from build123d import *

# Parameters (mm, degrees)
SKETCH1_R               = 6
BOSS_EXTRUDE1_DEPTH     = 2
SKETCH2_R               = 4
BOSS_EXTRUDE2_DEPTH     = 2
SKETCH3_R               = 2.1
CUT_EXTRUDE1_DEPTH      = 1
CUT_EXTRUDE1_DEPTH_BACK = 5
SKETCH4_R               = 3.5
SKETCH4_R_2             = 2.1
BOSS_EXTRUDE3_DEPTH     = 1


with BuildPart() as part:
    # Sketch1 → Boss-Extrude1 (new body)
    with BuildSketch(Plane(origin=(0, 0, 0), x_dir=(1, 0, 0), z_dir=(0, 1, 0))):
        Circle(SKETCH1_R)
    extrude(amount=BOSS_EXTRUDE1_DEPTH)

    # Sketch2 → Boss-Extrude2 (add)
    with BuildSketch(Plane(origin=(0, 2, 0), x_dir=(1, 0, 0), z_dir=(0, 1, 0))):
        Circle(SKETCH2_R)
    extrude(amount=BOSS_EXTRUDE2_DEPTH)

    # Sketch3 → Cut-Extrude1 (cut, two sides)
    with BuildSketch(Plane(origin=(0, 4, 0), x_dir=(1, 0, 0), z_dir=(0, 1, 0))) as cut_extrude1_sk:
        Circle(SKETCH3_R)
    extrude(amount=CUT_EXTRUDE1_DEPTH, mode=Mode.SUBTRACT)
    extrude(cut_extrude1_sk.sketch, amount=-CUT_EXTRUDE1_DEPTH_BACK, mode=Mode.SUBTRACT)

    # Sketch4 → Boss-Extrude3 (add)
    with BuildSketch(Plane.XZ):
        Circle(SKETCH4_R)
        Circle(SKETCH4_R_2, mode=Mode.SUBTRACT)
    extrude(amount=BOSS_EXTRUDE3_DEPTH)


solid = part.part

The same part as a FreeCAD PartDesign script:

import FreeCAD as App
import Part
import Sketcher
from FreeCAD import Vector

doc = App.newDocument("Part")
params = doc.addObject("Spreadsheet::Sheet", "Params")
for row, (alias, value) in enumerate([
    ("sketch1_diameter", "12 mm"),
    ("pad1_length", "2 mm"),
    ("sketch2_diameter", "8 mm"),
    ("pad2_length", "2 mm"),
    ("sketch3_diameter", "4.2 mm"),
    ("sketch4_diameter", "7 mm"),
    ("sketch4_diameter2", "4.2 mm"),
    ("pad3_length", "1 mm"),
], start=1):
    params.set(f"A{row}", alias)
    params.set(f"B{row}", "=" + value)
    params.setAlias(f"B{row}", alias)

body = doc.addObject("PartDesign::Body", "Body")

# Sketch on XZ plane
sketch1 = body.newObject("Sketcher::SketchObject", "Sketch")
sketch1.AttachmentSupport = (doc.getObject("XZ_Plane"), [""])
sketch1.MapMode = "FlatFace"
sketch1.addGeometry(Part.Circle(Vector(0, 0, 0), Vector(0, 0, 1), 6), False)
sketch1.addConstraint(Sketcher.Constraint("Coincident", 0, 3, -1, 1))
sketch1.addConstraint(Sketcher.Constraint("Diameter", 0, 12.0))
sketch1.setExpression("Constraints[1]", "Params.sketch1_diameter")
pad1 = body.newObject("PartDesign::Pad", "Pad")
pad1.Profile = sketch1
pad1.setExpression("Length", "Params.pad1_length")
pad1.Reversed = True

# Sketch on XZ plane
sketch2 = body.newObject("Sketcher::SketchObject", "Sketch001")
sketch2.AttachmentSupport = (doc.getObject("XZ_Plane"), [""])
sketch2.MapMode = "FlatFace"
sketch2.AttachmentOffset = App.Placement(Vector(0, 0, -2), App.Rotation())
sketch2.addGeometry(Part.Circle(Vector(0, 0, 0), Vector(0, 0, 1), 4), False)
sketch2.addConstraint(Sketcher.Constraint("Coincident", 0, 3, -1, 1))
sketch2.addConstraint(Sketcher.Constraint("Diameter", 0, 8.0))
sketch2.setExpression("Constraints[1]", "Params.sketch2_diameter")
pad2 = body.newObject("PartDesign::Pad", "Pad001")
pad2.Profile = sketch2
pad2.setExpression("Length", "Params.pad2_length")
pad2.Reversed = True

# Sketch on XZ plane
sketch3 = body.newObject("Sketcher::SketchObject", "Sketch002")
sketch3.AttachmentSupport = (doc.getObject("XZ_Plane"), [""])
sketch3.MapMode = "FlatFace"
sketch3.AttachmentOffset = App.Placement(Vector(0, 0, -4), App.Rotation())
sketch3.addGeometry(Part.Circle(Vector(0, 0, 0), Vector(0, 0, 1), 2.1), False)
sketch3.addConstraint(Sketcher.Constraint("Coincident", 0, 3, -1, 1))
sketch3.addConstraint(Sketcher.Constraint("Diameter", 0, 4.2))
sketch3.setExpression("Constraints[1]", "Params.sketch3_diameter")
pocket1 = body.newObject("PartDesign::Pocket", "Pocket")
pocket1.Profile = sketch3
pocket1.Type = "ThroughAll"
pocket1.Midplane = True

# Sketch on XZ plane
sketch4 = body.newObject("Sketcher::SketchObject", "Sketch003")
sketch4.AttachmentSupport = (doc.getObject("XZ_Plane"), [""])
sketch4.MapMode = "FlatFace"
sketch4.addGeometry(Part.Circle(Vector(0, 0, 0), Vector(0, 0, 1), 3.5), False)
sketch4.addGeometry(Part.Circle(Vector(0, 0, 0), Vector(0, 0, 1), 2.1), False)
sketch4.addConstraint(Sketcher.Constraint("Coincident", 0, 3, -1, 1))
sketch4.addConstraint(Sketcher.Constraint("Coincident", 1, 3, -1, 1))
sketch4.addConstraint(Sketcher.Constraint("Diameter", 0, 7.0))
sketch4.addConstraint(Sketcher.Constraint("Diameter", 1, 4.2))
sketch4.setExpression("Constraints[2]", "Params.sketch4_diameter")
sketch4.setExpression("Constraints[3]", "Params.sketch4_diameter2")
pad3 = body.newObject("PartDesign::Pad", "Pad002")
pad3.Profile = sketch4
pad3.setExpression("Length", "Params.pad3_length")

doc.recompute()
